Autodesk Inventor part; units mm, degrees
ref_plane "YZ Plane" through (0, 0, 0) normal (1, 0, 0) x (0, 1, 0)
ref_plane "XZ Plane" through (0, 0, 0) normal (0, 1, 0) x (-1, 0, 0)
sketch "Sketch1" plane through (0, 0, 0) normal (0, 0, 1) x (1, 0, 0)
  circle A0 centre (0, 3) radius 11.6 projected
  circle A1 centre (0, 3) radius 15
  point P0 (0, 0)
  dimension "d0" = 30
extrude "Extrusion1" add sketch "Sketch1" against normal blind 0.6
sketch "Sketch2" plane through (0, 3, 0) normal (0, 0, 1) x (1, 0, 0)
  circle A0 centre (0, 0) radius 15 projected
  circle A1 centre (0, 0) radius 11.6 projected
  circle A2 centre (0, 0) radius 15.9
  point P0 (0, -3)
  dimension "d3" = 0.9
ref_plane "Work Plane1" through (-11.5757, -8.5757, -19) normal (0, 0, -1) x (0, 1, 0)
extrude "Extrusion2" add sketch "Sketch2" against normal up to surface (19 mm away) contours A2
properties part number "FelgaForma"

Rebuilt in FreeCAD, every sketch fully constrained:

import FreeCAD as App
import Part
import Sketcher

doc = App.newDocument("Part")
body = doc.addObject("PartDesign::Body", "Body")

# Sketch on XY plane
sketch1 = body.newObject("Sketcher::SketchObject", "Sketch")
sketch1.AttachmentSupport = (doc.getObject("XY_Plane"), [""])
sketch1.MapMode = "FlatFace"
sketch1.addGeometry(Part.Circle(App.Vector(0, 3, 0), App.Vector(0, 0, 1), 15), False)
sketch1.addGeometry(Part.Circle(App.Vector(0, 3, 0), App.Vector(0, 0, 1), 12), False)
sketch1.addConstraint(Sketcher.Constraint("Coincident", 1, 3, 0, 3))
sketch1.addConstraint(Sketcher.Constraint("PointOnObject", 0, 3, -2))
sketch1.addConstraint(Sketcher.Constraint("Diameter", 0, 30.0))
sketch1.addConstraint(Sketcher.Constraint("Diameter", 1, 23.2))
sketch1.addConstraint(Sketcher.Constraint("DistanceY", -1, 1, 0, 3, 3.0))
pad1 = body.newObject("PartDesign::Pad", "Pad")
pad1.Profile = sketch1
pad1.Length = 0.6
pad1.Reversed = True

# Sketch on XY plane
sketch2 = body.newObject("Sketcher::SketchObject", "Sketch001")
sketch2.AttachmentSupport = (doc.getObject("XY_Plane"), [""])
sketch2.MapMode = "FlatFace"
sketch2.addGeometry(Part.Circle(App.Vector(0, 3, 0), App.Vector(0, 0, 1), 16), False)
sketch2.addGeometry(Part.Circle(App.Vector(0, 3, 0), App.Vector(0, 0, 1), 15), False)
sketch2.addConstraint(Sketcher.Constraint("Coincident", 1, 3, 0, 3))
sketch2.addConstraint(Sketcher.Constraint("PointOnObject", 0, 3, -2))
sketch2.addConstraint(Sketcher.Constraint("Diameter", 1, 30.0))
sketch2.addConstraint(Sketcher.Constraint("Diameter", 0, 31.8))
sketch2.addConstraint(Sketcher.Constraint("DistanceY", -1, 1, 0, 3, 3.0))
pad2 = body.newObject("PartDesign::Pad", "Pad001")
pad2.Profile = sketch2
pad2.Length = 19
pad2.Reversed = True

doc.recompute()
